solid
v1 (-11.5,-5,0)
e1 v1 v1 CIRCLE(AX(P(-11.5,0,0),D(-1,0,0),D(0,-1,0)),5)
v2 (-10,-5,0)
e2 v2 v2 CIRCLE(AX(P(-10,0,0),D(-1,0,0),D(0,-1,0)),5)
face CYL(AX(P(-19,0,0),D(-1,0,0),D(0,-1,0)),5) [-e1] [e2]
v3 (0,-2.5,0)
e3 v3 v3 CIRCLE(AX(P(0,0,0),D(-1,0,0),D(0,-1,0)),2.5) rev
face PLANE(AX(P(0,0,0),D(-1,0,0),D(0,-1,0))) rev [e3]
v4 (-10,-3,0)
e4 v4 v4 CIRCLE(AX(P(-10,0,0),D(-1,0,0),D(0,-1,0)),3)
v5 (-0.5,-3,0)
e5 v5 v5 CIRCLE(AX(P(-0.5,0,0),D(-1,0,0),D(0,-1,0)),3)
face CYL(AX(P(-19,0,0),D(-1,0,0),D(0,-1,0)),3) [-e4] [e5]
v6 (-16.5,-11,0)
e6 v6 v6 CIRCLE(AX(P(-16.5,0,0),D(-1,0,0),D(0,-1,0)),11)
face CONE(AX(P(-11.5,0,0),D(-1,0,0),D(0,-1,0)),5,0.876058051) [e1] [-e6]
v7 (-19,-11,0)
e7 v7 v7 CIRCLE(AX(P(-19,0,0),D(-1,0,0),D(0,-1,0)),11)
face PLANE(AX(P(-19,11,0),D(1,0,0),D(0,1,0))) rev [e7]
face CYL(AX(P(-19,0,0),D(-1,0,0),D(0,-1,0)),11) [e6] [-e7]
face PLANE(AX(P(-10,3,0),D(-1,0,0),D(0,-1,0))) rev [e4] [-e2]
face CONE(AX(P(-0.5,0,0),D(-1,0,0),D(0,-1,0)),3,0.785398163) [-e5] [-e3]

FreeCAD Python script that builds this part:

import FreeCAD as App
import Part
import Sketcher

V = App.Vector


def edges_at(feature, points):
    """Names of the edges that pass closest to the given points."""
    edges = feature.Shape.Edges
    near = lambda p: min(range(len(edges)), key=lambda i: edges[i].distToShape(Part.Vertex(*p))[0])
    return sorted({f"Edge{near(p) + 1}" for p in points})

doc = App.newDocument("Part")
body = doc.addObject("PartDesign::Body", "Body")

# Sketch on XY plane
sketch1 = body.newObject("Sketcher::SketchObject", "Sketch")
sketch1.AttachmentSupport = (doc.getObject("XY_Plane"), [""])
sketch1.MapMode = "FlatFace"
sketch1.addGeometry(Part.LineSegment(V(0, 0, 0), V(0, 3, 0)), False)
sketch1.addGeometry(Part.LineSegment(V(0, 3, 0), V(-10, 3, 0)), False)
sketch1.addGeometry(Part.LineSegment(V(-10, 3, 0), V(-10, 5, 0)), False)
sketch1.addGeometry(Part.LineSegment(V(-10, 5, 0), V(-11.5, 5, 0)), False)
sketch1.addGeometry(Part.LineSegment(V(-11.5, 5, 0), V(-16.5, 11, 0)), False)
sketch1.addGeometry(Part.LineSegment(V(-16.5, 11, 0), V(-19, 11, 0)), False)
sketch1.addGeometry(Part.LineSegment(V(-19, 11, 0), V(-19, 0, 0)), False)
sketch1.addGeometry(Part.LineSegment(V(-19, 0, 0), V(0, 0, 0)), False)
sketch1.addConstraint(Sketcher.Constraint("Coincident", 0, 2, 1, 1))
sketch1.addConstraint(Sketcher.Constraint("Coincident", 1, 2, 2, 1))
sketch1.addConstraint(Sketcher.Constraint("Coincident", 2, 2, 3, 1))
sketch1.addConstraint(Sketcher.Constraint("Coincident", 3, 2, 4, 1))
sketch1.addConstraint(Sketcher.Constraint("Coincident", 4, 2, 5, 1))
sketch1.addConstraint(Sketcher.Constraint("Coincident", 5, 2, 6, 1))
sketch1.addConstraint(Sketcher.Constraint("Coincident", 6, 2, 7, 1))
sketch1.addConstraint(Sketcher.Constraint("Coincident", 7, 2, 0, 1))
sketch1.addConstraint(Sketcher.Constraint("Vertical", 0))
sketch1.addConstraint(Sketcher.Constraint("Horizontal", 1))
sketch1.addConstraint(Sketcher.Constraint("Vertical", 2))
sketch1.addConstraint(Sketcher.Constraint("Horizontal", 3))
sketch1.addConstraint(Sketcher.Constraint("Horizontal", 5))
sketch1.addConstraint(Sketcher.Constraint("Vertical", 6))
sketch1.addConstraint(Sketcher.Constraint("Horizontal", 7))
sketch1.addConstraint(Sketcher.Constraint("Coincident", 7, 2, -1, 1))
sketch1.addConstraint(Sketcher.Constraint("DistanceX", 1, 2, 1, 1, 10.0))
sketch1.addConstraint(Sketcher.Constraint("DistanceX", 7, 1, 7, 2, 19.0))
sketch1.addConstraint(Sketcher.Constraint("DistanceY", 0, 1, 0, 2, 3.0))
sketch1.addConstraint(Sketcher.Constraint("DistanceY", 2, 1, 2, 2, 2.0))
sketch1.addConstraint(Sketcher.Constraint("DistanceY", 6, 2, 6, 1, 11.0))
sketch1.addConstraint(Sketcher.Constraint("DistanceX", 3, 2, 3, 1, 1.5))
sketch1.addConstraint(Sketcher.Constraint("DistanceX", 5, 2, 5, 1, 2.5))
revolution = body.newObject("PartDesign::Revolution", "Revolution")
revolution.Profile = sketch1
revolution.ReferenceAxis = (sketch1, ["H_Axis"])
revolution.Angle = 360
doc.recompute()

chamfer = body.newObject("PartDesign::Chamfer", "Chamfer")
chamfer.Base = (revolution, edges_at(revolution, [(0, -3, 0)]))
chamfer.Size = 0.5

doc.recompute()
